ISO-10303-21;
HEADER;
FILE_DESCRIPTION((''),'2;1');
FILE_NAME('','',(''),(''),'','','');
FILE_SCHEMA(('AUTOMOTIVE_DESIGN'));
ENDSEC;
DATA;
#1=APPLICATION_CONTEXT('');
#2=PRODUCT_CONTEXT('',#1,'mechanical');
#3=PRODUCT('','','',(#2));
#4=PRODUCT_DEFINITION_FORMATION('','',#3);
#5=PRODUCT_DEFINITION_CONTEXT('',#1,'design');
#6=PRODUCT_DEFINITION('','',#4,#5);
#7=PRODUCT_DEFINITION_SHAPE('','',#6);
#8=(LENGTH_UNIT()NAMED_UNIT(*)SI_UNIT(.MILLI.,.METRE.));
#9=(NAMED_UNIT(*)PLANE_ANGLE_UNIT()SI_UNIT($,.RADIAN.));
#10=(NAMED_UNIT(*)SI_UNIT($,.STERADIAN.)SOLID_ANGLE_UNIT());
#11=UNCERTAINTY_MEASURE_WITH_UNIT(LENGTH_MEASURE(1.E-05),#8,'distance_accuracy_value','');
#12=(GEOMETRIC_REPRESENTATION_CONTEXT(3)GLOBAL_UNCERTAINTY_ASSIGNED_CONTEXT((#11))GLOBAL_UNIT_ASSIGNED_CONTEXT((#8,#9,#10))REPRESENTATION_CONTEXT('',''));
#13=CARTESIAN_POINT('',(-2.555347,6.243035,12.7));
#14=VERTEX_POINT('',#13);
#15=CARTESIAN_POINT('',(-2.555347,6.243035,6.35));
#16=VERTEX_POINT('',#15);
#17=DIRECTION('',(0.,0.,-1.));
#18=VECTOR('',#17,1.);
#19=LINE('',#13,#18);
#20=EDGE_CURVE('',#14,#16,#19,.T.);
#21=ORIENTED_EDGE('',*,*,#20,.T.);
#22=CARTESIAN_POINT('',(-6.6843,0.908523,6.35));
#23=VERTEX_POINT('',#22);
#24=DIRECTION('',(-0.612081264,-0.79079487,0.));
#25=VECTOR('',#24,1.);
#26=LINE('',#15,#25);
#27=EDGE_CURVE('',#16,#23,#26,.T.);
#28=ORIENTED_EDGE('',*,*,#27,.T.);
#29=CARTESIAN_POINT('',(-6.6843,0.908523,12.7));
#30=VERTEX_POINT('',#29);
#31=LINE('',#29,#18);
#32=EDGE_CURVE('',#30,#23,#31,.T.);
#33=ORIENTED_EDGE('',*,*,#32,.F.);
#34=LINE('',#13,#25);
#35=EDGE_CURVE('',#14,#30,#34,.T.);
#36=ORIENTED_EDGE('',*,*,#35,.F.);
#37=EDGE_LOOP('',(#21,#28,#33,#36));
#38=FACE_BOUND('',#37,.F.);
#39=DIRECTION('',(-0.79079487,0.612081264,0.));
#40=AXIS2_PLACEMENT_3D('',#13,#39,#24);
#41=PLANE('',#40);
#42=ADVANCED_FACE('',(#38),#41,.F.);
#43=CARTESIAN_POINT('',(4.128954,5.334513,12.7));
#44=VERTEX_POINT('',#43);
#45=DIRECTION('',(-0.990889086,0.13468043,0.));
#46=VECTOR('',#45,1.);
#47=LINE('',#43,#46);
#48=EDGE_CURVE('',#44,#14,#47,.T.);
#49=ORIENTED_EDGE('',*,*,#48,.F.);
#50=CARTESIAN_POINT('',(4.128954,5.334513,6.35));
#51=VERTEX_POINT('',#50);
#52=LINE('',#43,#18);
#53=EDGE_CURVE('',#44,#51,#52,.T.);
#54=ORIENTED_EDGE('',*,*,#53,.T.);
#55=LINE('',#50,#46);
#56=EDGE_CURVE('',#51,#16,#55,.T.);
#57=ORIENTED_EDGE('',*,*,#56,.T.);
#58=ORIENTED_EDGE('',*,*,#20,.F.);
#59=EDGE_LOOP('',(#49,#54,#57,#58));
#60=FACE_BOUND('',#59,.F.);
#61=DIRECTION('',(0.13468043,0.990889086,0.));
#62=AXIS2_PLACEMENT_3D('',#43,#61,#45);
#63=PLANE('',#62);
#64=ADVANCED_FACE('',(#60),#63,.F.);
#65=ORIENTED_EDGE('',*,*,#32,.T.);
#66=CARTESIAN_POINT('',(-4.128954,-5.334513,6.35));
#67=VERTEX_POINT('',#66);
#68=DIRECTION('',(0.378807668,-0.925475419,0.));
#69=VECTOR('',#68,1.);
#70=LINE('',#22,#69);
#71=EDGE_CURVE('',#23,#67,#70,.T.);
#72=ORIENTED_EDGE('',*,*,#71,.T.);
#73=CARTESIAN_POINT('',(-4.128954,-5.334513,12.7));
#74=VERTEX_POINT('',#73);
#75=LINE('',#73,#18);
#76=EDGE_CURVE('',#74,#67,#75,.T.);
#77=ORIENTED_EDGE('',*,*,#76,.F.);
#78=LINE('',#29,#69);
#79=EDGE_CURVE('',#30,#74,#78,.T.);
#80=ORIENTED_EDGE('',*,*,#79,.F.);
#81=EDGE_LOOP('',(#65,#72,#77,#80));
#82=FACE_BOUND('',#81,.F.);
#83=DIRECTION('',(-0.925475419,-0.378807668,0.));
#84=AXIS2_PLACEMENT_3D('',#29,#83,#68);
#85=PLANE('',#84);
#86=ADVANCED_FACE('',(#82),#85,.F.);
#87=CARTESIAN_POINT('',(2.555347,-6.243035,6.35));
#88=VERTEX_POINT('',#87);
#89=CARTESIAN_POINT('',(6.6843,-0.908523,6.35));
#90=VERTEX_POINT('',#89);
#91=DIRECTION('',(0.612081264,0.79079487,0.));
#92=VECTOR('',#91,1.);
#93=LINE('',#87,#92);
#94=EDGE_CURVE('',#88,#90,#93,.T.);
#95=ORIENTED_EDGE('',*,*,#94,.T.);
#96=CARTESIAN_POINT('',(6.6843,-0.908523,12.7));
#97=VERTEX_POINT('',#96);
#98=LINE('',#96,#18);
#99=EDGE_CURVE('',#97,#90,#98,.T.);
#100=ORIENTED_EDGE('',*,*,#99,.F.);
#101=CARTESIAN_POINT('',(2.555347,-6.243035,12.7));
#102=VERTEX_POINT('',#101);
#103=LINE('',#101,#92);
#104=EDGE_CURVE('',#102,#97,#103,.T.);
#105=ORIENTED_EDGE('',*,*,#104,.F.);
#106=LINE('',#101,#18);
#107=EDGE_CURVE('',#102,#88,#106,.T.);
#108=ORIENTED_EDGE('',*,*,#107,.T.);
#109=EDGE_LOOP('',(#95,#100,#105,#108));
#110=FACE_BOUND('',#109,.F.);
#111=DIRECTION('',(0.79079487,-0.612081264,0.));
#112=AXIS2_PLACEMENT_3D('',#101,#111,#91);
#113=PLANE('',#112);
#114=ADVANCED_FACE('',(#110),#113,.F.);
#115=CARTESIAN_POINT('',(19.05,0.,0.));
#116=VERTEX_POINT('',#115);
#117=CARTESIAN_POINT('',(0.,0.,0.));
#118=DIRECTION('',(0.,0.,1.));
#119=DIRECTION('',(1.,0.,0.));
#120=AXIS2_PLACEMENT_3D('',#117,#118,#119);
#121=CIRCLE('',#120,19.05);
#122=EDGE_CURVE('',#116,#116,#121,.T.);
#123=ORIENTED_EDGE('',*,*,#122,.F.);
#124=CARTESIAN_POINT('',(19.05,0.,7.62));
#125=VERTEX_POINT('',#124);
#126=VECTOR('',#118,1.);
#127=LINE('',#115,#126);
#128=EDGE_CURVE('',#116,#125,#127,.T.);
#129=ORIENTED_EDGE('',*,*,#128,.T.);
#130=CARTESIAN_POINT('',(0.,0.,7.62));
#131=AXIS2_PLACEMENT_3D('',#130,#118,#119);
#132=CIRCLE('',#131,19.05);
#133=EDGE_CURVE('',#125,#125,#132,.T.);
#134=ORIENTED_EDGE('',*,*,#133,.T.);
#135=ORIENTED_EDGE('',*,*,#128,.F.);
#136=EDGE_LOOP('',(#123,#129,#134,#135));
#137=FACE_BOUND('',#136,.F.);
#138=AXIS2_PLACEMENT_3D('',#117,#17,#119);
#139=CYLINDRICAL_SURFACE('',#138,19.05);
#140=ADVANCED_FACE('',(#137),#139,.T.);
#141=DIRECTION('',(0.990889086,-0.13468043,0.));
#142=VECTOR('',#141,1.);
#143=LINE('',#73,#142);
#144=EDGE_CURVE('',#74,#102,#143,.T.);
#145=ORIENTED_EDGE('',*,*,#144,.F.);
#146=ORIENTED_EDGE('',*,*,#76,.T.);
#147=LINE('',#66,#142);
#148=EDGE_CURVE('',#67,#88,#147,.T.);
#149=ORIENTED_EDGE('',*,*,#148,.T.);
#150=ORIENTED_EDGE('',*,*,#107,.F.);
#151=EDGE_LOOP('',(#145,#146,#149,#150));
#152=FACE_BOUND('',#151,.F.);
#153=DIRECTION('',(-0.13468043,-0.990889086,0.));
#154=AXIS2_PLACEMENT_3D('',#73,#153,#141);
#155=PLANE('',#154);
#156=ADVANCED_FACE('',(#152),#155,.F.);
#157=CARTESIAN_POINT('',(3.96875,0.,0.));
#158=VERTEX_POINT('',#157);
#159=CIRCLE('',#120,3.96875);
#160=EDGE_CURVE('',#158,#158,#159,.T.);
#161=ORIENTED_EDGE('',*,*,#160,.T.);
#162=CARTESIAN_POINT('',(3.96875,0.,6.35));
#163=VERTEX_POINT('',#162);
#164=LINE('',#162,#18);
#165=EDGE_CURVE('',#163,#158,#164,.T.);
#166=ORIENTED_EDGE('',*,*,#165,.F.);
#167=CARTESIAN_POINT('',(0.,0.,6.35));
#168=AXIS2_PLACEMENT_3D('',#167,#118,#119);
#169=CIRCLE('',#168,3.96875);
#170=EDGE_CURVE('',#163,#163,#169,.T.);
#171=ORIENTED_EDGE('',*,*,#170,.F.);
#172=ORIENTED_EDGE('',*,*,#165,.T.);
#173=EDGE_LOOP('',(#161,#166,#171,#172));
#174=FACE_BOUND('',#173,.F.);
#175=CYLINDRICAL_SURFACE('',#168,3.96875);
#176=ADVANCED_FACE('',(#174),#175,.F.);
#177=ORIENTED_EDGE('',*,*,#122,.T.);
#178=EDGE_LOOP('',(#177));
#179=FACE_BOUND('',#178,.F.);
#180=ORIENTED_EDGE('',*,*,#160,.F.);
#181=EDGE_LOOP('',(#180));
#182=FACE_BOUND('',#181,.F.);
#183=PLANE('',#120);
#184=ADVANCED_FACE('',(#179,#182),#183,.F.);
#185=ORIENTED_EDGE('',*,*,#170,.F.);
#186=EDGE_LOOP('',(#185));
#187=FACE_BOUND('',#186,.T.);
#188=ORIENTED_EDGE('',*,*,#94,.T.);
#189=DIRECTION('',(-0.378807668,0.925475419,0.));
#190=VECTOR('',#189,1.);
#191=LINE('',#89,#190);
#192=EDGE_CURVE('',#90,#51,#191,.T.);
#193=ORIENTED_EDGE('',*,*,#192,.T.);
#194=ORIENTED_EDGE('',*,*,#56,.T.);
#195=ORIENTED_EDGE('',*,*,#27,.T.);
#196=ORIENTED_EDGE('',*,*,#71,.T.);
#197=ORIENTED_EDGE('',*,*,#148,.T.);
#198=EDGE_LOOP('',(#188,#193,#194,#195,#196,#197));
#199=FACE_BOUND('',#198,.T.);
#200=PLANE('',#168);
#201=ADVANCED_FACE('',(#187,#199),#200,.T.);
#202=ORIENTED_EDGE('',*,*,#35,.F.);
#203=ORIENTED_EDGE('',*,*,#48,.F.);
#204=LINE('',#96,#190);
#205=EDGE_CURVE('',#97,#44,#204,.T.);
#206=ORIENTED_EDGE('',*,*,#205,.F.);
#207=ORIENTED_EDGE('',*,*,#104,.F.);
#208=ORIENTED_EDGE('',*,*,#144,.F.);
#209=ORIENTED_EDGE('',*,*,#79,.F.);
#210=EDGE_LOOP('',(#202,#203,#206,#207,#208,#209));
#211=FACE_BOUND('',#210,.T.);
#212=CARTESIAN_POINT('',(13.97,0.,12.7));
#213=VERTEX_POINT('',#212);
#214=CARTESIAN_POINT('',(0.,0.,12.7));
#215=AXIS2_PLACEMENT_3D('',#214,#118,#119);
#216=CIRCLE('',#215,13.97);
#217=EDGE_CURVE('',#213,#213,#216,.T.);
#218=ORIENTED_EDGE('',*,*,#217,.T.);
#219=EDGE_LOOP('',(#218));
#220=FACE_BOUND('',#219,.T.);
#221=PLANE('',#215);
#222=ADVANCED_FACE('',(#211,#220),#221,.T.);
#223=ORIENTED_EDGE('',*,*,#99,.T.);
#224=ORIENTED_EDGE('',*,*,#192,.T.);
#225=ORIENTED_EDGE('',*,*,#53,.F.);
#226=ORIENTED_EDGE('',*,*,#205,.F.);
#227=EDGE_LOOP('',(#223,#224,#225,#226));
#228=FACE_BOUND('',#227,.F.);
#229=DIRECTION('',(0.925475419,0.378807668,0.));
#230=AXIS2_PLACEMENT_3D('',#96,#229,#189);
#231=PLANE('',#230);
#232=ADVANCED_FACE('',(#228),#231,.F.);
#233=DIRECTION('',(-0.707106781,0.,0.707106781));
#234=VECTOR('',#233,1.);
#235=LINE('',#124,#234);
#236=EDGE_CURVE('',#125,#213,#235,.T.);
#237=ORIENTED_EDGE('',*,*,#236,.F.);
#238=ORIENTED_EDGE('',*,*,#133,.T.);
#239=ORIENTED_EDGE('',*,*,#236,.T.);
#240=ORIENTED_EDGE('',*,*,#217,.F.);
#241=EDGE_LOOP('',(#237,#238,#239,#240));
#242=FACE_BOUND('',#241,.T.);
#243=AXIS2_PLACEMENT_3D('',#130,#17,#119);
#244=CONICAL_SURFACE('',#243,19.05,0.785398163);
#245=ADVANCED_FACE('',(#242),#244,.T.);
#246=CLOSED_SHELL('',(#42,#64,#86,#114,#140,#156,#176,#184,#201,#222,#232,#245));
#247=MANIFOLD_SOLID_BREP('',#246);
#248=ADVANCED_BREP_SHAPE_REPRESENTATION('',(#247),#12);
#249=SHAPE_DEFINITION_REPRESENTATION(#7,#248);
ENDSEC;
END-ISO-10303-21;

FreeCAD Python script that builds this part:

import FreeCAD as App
import Part
import Sketcher
from FreeCAD import Vector
Q = App.Units.Quantity


def edges_at(feature, points):
    """Names of the edges that pass closest to the given points."""
    edges = feature.Shape.Edges
    near = lambda p: min(range(len(edges)), key=lambda i: edges[i].distToShape(Part.Vertex(*p))[0])
    return sorted({f"Edge{near(p) + 1}" for p in points})

doc = App.newDocument("Part")
body = doc.addObject("PartDesign::Body", "Body")

# Sketch on XY plane
sketch1 = body.newObject("Sketcher::SketchObject", "Sketch")
sketch1.AttachmentSupport = (doc.getObject("XY_Plane"), [""])
sketch1.MapMode = "FlatFace"
sketch1.addGeometry(Part.Circle(Vector(0, 0, 0), Vector(0, 0, 1), 19), False)
sketch1.addConstraint(Sketcher.Constraint("Coincident", 0, 3, -1, 1))
sketch1.addConstraint(Sketcher.Constraint("Diameter", 0, Q("1.5 in")))
pad1 = body.newObject("PartDesign::Pad", "Pad")
pad1.Profile = sketch1
pad1.Length = Q("0.5 in")

# Sketch on XY plane
sketch2 = body.newObject("Sketcher::SketchObject", "Sketch001")
sketch2.AttachmentSupport = (doc.getObject("XY_Plane"), [""])
sketch2.MapMode = "FlatFace"
sketch2.AttachmentOffset = App.Placement(Vector(0, 0, 0.5 * 25.4), App.Rotation())
sketch2.addGeometry(Part.LineSegment(Vector(7, -1, 0), Vector(4, 5, 0)), False)
sketch2.addGeometry(Part.LineSegment(Vector(4, 5, 0), Vector(-3, 6, 0)), False)
sketch2.addGeometry(Part.LineSegment(Vector(-3, 6, 0), Vector(-7, 1, 0)), False)
sketch2.addGeometry(Part.LineSegment(Vector(-7, 1, 0), Vector(-4, -5, 0)), False)
sketch2.addGeometry(Part.LineSegment(Vector(-4, -5, 0), Vector(3, -6, 0)), False)
sketch2.addGeometry(Part.LineSegment(Vector(3, -6, 0), Vector(7, -1, 0)), False)
sketch2.addConstraint(Sketcher.Constraint("Coincident", 0, 2, 1, 1))
sketch2.addConstraint(Sketcher.Constraint("Coincident", 1, 2, 2, 1))
sketch2.addConstraint(Sketcher.Constraint("Coincident", 2, 2, 3, 1))
sketch2.addConstraint(Sketcher.Constraint("Coincident", 3, 2, 4, 1))
sketch2.addConstraint(Sketcher.Constraint("Coincident", 4, 2, 5, 1))
sketch2.addConstraint(Sketcher.Constraint("Coincident", 5, 2, 0, 1))
sketch2.addConstraint(Sketcher.Constraint("Symmetric", 0, 2, 3, 2, -1, 1))
sketch2.addConstraint(Sketcher.Constraint("Symmetric", 1, 2, 4, 2, -1, 1))
sketch2.addConstraint(Sketcher.Constraint("Symmetric", 2, 2, 5, 2, -1, 1))
sketch2.addConstraint(Sketcher.Constraint("Equal", 0, 1))
sketch2.addConstraint(Sketcher.Constraint("Equal", 1, 2))
sketch2.addConstraint(Sketcher.Constraint("DistanceX", 2, 2, -1, 1, 6.6843))
sketch2.addConstraint(Sketcher.Constraint("DistanceX", 1, 2, 0, 2, 6.684301))
sketch2.addConstraint(Sketcher.Constraint("Distance", 0, 6.745761))
sketch2.addConstraint(Sketcher.Constraint("DistanceY", 2, 2, 0, 2, 4.42599))
pocket1 = body.newObject("PartDesign::Pocket", "Pocket")
pocket1.Profile = sketch2
pocket1.Length = Q("0.25 in")

# Sketch on XY plane
sketch3 = body.newObject("Sketcher::SketchObject", "Sketch002")
sketch3.AttachmentSupport = (doc.getObject("XY_Plane"), [""])
sketch3.MapMode = "FlatFace"
sketch3.AttachmentOffset = App.Placement(Vector(0, 0, 0.25 * 25.4), App.Rotation())
sketch3.addGeometry(Part.Circle(Vector(0, 0, 0), Vector(0, 0, 1), 4), False)
sketch3.addConstraint(Sketcher.Constraint("Coincident", 0, 3, -1, 1))
sketch3.addConstraint(Sketcher.Constraint("Diameter", 0, Q("0.3125 in")))
pocket2 = body.newObject("PartDesign::Pocket", "Pocket001")
pocket2.Profile = sketch3
pocket2.Type = "ThroughAll"
doc.recompute()

chamfer = body.newObject("PartDesign::Chamfer", "Chamfer")
chamfer.Base = (pocket2, edges_at(pocket2, [(-19.05, 0, 12.7)]))
chamfer.Size = Q("0.2 in")

doc.recompute()
